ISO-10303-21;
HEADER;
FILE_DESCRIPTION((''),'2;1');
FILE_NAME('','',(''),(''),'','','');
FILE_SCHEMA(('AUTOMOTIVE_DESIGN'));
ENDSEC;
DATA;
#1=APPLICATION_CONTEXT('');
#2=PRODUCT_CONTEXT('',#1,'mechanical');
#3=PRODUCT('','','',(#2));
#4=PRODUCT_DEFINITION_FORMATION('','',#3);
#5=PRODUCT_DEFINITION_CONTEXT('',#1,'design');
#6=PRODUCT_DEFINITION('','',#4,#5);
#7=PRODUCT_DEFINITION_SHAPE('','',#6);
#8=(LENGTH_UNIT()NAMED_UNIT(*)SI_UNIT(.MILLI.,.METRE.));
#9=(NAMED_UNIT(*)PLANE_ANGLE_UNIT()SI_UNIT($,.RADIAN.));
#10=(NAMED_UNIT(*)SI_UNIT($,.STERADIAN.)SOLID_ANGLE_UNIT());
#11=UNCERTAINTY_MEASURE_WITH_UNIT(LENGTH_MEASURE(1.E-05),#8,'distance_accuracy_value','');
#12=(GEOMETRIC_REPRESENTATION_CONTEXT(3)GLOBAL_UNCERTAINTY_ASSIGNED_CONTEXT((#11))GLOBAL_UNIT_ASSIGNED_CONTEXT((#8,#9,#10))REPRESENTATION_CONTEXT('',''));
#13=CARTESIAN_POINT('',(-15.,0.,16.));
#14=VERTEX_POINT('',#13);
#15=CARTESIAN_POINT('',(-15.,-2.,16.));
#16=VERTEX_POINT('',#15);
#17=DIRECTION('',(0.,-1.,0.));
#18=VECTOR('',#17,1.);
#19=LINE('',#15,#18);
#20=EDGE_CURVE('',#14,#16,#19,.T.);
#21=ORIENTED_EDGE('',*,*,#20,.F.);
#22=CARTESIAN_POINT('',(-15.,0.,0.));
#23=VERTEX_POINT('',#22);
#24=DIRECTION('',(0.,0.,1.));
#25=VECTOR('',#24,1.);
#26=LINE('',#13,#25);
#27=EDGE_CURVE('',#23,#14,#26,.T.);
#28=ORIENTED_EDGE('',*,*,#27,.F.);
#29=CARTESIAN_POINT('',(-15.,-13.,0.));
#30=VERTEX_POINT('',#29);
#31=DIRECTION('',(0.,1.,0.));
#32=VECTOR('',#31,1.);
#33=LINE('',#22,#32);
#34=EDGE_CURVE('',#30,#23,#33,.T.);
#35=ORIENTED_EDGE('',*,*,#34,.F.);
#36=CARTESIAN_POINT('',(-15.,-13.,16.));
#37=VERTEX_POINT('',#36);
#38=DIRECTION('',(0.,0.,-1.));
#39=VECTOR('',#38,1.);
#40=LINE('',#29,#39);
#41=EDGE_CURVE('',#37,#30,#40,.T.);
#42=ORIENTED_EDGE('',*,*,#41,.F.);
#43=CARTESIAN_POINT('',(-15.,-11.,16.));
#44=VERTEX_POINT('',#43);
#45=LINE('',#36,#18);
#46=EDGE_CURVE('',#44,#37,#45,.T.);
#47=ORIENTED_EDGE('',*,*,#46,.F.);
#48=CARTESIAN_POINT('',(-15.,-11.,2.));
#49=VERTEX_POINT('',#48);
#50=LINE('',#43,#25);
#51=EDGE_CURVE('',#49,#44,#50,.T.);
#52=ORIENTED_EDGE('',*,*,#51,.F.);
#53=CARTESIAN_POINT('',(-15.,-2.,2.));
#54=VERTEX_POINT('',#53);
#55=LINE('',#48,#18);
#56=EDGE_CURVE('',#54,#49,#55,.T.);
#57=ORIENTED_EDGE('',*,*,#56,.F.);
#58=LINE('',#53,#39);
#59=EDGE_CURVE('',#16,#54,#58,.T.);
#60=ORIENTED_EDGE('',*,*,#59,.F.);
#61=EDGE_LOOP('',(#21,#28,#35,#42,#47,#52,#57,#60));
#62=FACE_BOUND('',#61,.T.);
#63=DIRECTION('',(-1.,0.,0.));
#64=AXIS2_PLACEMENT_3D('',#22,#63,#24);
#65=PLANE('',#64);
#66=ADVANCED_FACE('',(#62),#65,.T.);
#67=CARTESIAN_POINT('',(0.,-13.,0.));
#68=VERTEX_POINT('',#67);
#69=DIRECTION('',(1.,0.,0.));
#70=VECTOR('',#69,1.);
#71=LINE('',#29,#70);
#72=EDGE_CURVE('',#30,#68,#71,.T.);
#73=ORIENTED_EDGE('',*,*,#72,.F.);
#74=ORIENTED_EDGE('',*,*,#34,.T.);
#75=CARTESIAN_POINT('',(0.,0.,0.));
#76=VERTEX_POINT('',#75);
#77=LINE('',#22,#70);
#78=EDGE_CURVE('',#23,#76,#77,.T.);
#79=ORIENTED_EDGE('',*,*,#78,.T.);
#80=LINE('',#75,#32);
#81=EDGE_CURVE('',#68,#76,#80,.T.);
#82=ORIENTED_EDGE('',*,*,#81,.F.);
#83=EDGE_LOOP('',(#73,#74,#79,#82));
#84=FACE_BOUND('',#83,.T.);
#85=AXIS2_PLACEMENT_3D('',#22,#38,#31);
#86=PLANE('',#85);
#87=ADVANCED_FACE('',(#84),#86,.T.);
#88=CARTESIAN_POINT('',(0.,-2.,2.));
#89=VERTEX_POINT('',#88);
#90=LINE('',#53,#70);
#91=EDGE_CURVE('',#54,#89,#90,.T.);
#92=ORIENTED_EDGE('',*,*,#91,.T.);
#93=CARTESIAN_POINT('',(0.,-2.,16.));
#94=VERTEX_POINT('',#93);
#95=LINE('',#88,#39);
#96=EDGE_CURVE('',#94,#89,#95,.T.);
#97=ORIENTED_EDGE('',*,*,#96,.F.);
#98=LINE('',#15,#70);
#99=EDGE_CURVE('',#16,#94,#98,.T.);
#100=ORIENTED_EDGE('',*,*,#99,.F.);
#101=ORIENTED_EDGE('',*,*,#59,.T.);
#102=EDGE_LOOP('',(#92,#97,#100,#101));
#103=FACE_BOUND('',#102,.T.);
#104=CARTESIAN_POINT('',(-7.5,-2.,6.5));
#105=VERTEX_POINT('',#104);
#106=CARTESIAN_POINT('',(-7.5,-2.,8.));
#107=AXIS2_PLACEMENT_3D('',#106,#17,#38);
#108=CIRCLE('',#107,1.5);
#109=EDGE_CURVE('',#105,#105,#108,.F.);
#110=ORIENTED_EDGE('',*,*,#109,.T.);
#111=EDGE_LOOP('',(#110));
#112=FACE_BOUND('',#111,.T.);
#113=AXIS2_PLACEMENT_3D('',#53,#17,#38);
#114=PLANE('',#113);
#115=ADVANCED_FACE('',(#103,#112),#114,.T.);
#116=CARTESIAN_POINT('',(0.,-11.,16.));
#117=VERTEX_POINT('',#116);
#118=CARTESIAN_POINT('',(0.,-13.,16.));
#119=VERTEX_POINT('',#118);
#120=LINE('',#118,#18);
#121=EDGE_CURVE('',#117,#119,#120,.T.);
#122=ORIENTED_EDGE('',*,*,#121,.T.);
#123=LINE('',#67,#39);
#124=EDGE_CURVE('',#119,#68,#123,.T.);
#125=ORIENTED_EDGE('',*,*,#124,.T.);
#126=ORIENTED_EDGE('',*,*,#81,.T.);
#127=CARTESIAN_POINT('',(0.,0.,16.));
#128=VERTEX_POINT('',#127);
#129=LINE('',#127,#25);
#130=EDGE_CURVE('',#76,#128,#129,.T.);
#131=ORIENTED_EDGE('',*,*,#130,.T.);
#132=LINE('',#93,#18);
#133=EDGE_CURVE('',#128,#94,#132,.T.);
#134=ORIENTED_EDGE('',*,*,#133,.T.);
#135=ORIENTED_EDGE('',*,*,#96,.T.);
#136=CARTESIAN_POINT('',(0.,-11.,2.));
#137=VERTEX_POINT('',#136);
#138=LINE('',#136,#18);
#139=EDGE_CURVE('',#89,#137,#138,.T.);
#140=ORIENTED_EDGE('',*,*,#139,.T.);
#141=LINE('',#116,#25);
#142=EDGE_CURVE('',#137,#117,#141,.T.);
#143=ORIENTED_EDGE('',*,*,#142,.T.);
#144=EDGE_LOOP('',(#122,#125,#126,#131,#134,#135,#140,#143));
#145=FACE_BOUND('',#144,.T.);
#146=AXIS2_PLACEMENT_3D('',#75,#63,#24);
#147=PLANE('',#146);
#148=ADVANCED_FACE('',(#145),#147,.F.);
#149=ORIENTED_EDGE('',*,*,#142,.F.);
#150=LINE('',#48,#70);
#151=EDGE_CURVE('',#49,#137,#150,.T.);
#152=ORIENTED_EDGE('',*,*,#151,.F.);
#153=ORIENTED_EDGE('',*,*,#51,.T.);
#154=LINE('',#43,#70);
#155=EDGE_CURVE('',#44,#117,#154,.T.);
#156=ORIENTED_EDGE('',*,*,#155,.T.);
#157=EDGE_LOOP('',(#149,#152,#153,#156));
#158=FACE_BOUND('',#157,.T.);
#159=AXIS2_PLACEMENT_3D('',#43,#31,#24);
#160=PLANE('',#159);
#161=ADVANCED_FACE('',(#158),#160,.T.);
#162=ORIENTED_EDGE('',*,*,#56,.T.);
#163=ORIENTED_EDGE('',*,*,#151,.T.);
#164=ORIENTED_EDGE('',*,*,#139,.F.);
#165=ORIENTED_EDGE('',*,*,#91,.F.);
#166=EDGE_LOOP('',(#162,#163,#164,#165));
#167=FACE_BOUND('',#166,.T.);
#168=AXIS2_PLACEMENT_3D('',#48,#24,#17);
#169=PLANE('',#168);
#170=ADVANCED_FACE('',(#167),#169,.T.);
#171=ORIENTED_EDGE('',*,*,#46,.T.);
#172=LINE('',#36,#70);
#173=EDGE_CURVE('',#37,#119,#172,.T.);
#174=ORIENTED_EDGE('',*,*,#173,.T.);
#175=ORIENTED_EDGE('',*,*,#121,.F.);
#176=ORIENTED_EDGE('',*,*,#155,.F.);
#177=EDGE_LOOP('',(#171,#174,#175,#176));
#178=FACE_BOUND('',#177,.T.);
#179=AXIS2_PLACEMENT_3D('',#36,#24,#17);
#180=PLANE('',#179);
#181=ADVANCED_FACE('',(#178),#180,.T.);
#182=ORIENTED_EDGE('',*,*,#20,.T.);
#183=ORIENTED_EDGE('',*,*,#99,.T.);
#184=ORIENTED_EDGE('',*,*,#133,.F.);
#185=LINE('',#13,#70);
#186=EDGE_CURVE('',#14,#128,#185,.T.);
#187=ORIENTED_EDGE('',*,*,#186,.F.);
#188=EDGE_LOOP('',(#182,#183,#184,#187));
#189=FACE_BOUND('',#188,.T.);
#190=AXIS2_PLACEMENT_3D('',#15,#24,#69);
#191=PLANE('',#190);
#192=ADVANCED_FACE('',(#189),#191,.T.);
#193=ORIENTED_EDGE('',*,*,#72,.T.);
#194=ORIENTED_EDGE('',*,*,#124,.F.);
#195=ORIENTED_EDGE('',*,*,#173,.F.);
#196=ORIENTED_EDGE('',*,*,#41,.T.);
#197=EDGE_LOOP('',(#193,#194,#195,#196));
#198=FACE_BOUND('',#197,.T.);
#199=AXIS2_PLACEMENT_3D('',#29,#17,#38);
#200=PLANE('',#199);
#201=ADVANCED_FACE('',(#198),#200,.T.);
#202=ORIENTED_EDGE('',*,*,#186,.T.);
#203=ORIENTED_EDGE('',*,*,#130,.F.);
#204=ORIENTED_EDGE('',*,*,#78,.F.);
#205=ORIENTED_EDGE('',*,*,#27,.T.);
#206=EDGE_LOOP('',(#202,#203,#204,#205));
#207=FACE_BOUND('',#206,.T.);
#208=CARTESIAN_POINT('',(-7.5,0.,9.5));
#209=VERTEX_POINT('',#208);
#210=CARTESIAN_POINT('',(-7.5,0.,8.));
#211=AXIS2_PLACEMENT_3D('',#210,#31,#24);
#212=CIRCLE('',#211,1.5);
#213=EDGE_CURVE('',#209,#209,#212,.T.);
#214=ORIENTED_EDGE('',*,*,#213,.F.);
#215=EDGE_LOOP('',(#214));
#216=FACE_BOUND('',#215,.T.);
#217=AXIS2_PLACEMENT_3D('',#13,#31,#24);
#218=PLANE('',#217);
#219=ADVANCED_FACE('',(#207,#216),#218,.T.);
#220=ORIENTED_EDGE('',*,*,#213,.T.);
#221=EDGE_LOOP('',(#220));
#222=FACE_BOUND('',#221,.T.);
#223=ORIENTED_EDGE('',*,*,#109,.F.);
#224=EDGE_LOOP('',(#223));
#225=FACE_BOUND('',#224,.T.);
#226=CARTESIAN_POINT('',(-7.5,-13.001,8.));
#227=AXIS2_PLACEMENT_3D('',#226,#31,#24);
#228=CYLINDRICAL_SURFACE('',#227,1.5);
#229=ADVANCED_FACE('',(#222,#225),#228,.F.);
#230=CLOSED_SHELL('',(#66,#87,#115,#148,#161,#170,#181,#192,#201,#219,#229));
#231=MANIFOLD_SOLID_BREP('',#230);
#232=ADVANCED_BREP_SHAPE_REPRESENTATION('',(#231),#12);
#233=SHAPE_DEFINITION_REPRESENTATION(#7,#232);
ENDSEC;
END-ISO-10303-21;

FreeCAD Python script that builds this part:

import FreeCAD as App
import Part
import Sketcher
Q = App.Units.Quantity

doc = App.newDocument("Part")
body = doc.addObject("PartDesign::Body", "Body")

# Sketch on YZ plane
sketch1 = body.newObject("Sketcher::SketchObject", "Sketch")
sketch1.AttachmentSupport = (doc.getObject("YZ_Plane"), [""])
sketch1.MapMode = "FlatFace"
sketch1.addGeometry([
    Part.LineSegment(App.Vector(-13, 0, 0), App.Vector(0, 0, 0)),  # 0
    Part.LineSegment(App.Vector(0, 0, 0), App.Vector(0, 16, 0)),  # 1
    Part.LineSegment(App.Vector(0, 16, 0), App.Vector(-2, 16, 0)),  # 2
    Part.LineSegment(App.Vector(-2, 16, 0), App.Vector(-2, 2, 0)),  # 3
    Part.LineSegment(App.Vector(-2, 2, 0), App.Vector(-11, 2, 0)),  # 4
    Part.LineSegment(App.Vector(-11, 2, 0), App.Vector(-11, 16, 0)),  # 5
    Part.LineSegment(App.Vector(-11, 16, 0), App.Vector(-13, 16, 0)),  # 6
    Part.LineSegment(App.Vector(-13, 16, 0), App.Vector(-13, 0, 0)),  # 7
], False)
sketch1.addConstraint([
    Sketcher.Constraint("Coincident", 0, 2, 1, 1),
    Sketcher.Constraint("Coincident", 1, 2, 2, 1),
    Sketcher.Constraint("Coincident", 2, 2, 3, 1),
    Sketcher.Constraint("Coincident", 3, 2, 4, 1),
    Sketcher.Constraint("Coincident", 4, 2, 5, 1),
    Sketcher.Constraint("Coincident", 5, 2, 6, 1),
    Sketcher.Constraint("Coincident", 6, 2, 7, 1),
    Sketcher.Constraint("Coincident", 7, 2, 0, 1),
    Sketcher.Constraint("Horizontal", 0),
    Sketcher.Constraint("Vertical", 1),
    Sketcher.Constraint("Horizontal", 2),
    Sketcher.Constraint("Vertical", 3),
    Sketcher.Constraint("Horizontal", 4),
    Sketcher.Constraint("Vertical", 5),
    Sketcher.Constraint("Horizontal", 6),
    Sketcher.Constraint("Vertical", 7),
    Sketcher.Constraint("Coincident", 0, 2, -1, 1),
    Sketcher.Constraint("Horizontal", 2, 2, 5, 2),
    Sketcher.Constraint("Equal", 2, 6),
    Sketcher.Constraint("DistanceX", 0, 1, 0, 2, Q("13 mm")),
    Sketcher.Constraint("DistanceX", 2, 2, 2, 1, Q("2 mm")),
    Sketcher.Constraint("DistanceY", 1, 1, 1, 2, Q("16 mm")),
    Sketcher.Constraint("DistanceY", 3, 2, 3, 1, Q("14 mm")),
])
pad1 = body.newObject("PartDesign::Pad", "Pad")
pad1.Profile = sketch1
pad1.Length = 15
pad1.Reversed = True

# Sketch on XZ plane
sketch2 = body.newObject("Sketcher::SketchObject", "Sketch001")
sketch2.AttachmentSupport = (doc.getObject("XZ_Plane"), [""])
sketch2.MapMode = "FlatFace"
sketch2.addGeometry(Part.Circle(App.Vector(-7.5, 8, 0), App.Vector(0, 0, 1), 1.5), False)
sketch2.addConstraint([
    Sketcher.Constraint("Diameter", 0, Q("3 mm")),
    Sketcher.Constraint("DistanceY", -1, 1, 0, 3, Q("8 mm")),
    Sketcher.Constraint("DistanceX", 0, 3, -1, 1, Q("7.5 mm")),
])
pocket1 = body.newObject("PartDesign::Pocket", "Pocket")
pocket1.Profile = sketch2
pocket1.Type = "UpToFirst"
pocket1.Reversed = True

doc.recompute()
